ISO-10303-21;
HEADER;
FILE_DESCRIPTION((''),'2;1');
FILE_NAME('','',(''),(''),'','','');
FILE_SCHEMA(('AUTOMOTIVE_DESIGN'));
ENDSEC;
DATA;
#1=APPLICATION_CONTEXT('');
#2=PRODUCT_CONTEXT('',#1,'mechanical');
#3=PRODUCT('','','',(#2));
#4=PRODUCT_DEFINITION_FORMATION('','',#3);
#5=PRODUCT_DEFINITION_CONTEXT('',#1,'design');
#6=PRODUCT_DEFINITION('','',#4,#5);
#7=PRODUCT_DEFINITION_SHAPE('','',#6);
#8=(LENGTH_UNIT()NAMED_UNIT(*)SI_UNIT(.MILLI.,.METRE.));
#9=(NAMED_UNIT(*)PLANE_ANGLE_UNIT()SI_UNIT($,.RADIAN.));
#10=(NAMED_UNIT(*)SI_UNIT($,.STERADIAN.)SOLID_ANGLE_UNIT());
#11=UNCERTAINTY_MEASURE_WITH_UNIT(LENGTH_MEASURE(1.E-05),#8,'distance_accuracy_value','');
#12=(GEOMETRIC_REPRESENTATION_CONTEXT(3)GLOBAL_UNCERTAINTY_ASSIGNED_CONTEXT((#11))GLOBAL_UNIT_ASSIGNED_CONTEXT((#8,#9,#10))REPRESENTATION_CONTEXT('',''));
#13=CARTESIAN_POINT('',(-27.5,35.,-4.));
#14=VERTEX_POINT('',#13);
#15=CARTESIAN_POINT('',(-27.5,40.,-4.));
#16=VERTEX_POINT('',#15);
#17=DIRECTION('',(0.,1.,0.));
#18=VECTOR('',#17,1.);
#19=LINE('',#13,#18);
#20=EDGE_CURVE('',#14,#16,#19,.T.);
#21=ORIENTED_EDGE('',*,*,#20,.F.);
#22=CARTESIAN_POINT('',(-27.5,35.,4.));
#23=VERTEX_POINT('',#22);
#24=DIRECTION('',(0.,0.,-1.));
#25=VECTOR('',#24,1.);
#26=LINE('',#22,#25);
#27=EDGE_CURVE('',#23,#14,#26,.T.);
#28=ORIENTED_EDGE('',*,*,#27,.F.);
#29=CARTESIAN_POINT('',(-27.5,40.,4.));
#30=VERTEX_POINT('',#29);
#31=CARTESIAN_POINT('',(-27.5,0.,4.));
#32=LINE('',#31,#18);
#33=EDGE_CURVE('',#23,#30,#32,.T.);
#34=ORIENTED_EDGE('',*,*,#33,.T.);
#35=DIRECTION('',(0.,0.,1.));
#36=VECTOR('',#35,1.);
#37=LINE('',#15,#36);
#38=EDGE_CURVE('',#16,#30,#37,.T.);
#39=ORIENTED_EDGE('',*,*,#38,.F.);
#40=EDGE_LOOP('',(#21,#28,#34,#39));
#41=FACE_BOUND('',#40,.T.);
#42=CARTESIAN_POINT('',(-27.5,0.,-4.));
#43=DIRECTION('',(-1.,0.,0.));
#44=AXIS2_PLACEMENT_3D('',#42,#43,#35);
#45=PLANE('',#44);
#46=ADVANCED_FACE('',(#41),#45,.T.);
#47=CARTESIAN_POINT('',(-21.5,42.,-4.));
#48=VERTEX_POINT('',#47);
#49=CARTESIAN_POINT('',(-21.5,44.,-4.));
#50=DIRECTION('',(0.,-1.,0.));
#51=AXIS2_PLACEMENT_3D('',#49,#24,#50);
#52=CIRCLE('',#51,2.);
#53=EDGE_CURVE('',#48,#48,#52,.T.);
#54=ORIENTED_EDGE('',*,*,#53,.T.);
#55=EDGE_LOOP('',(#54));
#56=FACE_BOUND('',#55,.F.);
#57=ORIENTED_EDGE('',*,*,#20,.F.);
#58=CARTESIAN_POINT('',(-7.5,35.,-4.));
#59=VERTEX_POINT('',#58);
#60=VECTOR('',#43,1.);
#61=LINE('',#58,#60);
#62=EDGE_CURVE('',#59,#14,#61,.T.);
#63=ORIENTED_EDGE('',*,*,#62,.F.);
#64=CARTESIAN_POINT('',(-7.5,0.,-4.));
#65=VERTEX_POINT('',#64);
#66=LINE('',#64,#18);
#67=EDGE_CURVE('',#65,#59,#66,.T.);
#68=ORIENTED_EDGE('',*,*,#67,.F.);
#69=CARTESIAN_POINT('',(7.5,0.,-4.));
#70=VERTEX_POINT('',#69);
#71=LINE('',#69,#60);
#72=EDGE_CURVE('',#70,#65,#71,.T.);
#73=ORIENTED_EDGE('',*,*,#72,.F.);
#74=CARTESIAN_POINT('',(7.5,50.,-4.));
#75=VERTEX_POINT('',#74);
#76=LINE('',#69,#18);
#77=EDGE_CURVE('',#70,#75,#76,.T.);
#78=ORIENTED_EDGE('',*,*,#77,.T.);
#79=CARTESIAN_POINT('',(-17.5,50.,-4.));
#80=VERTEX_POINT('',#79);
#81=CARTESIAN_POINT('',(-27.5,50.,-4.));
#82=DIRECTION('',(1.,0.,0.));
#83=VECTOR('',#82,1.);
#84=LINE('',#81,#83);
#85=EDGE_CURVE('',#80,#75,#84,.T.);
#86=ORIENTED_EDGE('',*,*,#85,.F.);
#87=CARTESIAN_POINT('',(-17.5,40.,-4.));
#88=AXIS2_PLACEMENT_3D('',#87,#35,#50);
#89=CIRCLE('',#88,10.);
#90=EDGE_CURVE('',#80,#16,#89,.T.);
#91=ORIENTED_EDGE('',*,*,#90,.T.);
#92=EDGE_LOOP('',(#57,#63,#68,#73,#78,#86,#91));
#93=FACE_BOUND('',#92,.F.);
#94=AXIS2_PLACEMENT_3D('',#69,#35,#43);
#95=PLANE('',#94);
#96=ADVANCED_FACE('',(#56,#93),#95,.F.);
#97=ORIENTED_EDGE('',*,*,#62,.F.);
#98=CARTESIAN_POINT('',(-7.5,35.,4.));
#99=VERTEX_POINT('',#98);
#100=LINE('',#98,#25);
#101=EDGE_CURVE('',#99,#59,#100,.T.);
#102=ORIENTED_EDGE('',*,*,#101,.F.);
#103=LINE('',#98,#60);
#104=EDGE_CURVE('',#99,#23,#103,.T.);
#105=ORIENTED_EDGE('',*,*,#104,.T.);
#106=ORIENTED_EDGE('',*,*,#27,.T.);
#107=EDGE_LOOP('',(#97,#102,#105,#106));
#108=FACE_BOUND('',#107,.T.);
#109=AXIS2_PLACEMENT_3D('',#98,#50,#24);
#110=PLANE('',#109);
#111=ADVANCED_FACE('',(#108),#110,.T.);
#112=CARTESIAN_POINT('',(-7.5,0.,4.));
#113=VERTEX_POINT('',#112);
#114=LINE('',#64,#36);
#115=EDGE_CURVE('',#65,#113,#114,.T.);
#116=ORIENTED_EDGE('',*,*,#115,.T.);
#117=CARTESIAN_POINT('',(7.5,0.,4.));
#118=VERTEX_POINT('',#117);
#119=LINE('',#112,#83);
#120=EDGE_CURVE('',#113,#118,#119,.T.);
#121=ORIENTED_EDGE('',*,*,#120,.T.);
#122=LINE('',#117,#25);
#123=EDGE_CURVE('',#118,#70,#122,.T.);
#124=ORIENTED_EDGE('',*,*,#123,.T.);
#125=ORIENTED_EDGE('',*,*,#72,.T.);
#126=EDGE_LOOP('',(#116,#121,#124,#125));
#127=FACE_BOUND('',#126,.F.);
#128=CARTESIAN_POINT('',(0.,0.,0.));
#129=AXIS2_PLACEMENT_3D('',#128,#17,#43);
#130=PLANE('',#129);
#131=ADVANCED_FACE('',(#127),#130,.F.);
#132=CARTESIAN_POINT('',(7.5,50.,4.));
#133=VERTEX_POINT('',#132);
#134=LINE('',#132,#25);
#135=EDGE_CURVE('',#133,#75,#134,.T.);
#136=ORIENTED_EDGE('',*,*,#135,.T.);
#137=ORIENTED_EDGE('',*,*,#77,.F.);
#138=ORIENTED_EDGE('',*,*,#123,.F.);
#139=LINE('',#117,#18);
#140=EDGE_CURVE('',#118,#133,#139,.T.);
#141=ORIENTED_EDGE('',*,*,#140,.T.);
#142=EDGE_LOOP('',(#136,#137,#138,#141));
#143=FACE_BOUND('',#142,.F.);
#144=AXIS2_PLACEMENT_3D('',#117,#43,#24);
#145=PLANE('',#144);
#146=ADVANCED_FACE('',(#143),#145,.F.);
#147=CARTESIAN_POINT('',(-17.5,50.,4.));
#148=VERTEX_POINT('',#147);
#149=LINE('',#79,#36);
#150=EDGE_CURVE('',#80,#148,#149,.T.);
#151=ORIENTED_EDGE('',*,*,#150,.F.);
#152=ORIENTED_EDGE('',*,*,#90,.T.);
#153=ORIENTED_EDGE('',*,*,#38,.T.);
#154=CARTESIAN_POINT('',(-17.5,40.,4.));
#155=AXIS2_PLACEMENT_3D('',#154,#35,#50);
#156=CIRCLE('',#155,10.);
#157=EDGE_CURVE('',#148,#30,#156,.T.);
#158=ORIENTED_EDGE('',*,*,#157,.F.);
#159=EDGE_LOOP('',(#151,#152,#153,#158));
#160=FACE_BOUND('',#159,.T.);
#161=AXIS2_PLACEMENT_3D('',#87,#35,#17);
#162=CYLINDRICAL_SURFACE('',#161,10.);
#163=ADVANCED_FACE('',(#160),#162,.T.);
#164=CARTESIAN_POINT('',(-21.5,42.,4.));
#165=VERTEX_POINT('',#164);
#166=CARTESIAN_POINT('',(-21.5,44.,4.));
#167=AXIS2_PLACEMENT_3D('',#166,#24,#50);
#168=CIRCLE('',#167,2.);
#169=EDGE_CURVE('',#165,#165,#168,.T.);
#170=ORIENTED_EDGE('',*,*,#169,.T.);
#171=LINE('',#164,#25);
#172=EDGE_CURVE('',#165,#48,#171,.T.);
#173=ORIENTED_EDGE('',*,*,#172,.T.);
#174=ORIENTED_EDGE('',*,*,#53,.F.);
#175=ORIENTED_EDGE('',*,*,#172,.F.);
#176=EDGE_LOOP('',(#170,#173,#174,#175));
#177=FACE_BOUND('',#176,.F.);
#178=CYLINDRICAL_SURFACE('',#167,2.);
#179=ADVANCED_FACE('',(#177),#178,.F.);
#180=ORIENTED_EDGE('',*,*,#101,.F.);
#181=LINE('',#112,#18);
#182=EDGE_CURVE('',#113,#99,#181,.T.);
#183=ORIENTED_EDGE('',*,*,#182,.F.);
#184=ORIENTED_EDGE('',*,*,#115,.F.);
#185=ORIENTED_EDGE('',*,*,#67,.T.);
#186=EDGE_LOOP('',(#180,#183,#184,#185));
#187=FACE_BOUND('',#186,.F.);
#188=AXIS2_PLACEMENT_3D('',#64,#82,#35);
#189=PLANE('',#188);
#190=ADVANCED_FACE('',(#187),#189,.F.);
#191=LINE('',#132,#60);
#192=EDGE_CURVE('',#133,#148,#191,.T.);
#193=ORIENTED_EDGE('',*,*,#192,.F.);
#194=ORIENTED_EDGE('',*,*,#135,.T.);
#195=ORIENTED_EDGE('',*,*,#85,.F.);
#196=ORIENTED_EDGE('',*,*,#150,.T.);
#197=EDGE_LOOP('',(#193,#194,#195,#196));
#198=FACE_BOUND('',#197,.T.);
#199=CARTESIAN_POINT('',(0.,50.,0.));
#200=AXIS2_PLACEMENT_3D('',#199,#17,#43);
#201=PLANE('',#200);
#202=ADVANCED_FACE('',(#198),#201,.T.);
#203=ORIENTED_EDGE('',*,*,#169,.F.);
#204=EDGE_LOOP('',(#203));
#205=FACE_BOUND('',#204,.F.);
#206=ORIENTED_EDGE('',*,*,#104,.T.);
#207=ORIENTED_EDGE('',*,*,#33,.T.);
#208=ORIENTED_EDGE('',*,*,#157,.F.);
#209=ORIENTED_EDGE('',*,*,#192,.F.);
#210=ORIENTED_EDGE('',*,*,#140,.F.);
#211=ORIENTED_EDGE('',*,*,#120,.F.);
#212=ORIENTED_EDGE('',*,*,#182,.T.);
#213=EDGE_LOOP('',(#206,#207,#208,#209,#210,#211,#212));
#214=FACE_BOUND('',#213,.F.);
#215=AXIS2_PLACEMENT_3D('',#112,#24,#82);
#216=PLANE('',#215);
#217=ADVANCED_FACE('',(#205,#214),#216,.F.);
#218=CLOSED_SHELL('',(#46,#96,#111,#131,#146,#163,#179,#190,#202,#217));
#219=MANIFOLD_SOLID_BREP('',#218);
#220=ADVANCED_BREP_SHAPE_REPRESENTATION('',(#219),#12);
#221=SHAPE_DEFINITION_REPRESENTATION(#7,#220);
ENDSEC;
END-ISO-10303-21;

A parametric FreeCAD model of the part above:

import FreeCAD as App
import Part
import Sketcher


def edges_at(feature, points):
    """Names of the edges that pass closest to the given points."""
    edges = feature.Shape.Edges
    near = lambda p: min(range(len(edges)), key=lambda i: edges[i].distToShape(Part.Vertex(*p))[0])
    return sorted({f"Edge{near(p) + 1}" for p in points})


def add_polygon(sketch, points):
    """Adds a closed chain of lines whose ends are joined by coincident constraints."""
    first, n = sketch.GeometryCount, len(points)
    for a, b in zip(points, points[1:] + points[:1]):
        sketch.addGeometry(Part.LineSegment(App.Vector(*a, 0), App.Vector(*b, 0)), False)
    for i in range(n):
        sketch.addConstraint(Sketcher.Constraint("Coincident", first + i, 2, first + (i + 1) % n, 1))

doc = App.newDocument("Part")
body = doc.addObject("PartDesign::Body", "Body")

sketch1 = body.newObject("Sketcher::SketchObject", "Sketch")
sketch1.AttachmentSupport = (doc.getObject("XZ_Plane"), [""])
sketch1.MapMode = "FlatFace"
add_polygon(sketch1, [(8, 4), (8, -4), (-8, -4), (-8, 4)])
sketch1.addConstraint(Sketcher.Constraint("Vertical", 0))
sketch1.addConstraint(Sketcher.Constraint("Horizontal", 1))
sketch1.addConstraint(Sketcher.Constraint("Vertical", 2))
sketch1.addConstraint(Sketcher.Constraint("Horizontal", 3))
sketch1.addConstraint(Sketcher.Constraint("Symmetric", 0, 2, 2, 2, -1, 1))
sketch1.addConstraint(Sketcher.Constraint("DistanceX", 1, 2, 1, 1, 15.0))
sketch1.addConstraint(Sketcher.Constraint("DistanceY", 0, 2, 0, 1, 8.0))
pad1 = body.newObject("PartDesign::Pad", "Pad")
pad1.Profile = sketch1
pad1.Length = 50
pad1.Reversed = True

sketch2 = body.newObject("Sketcher::SketchObject", "Sketch001")
sketch2.AttachmentSupport = (doc.getObject("YZ_Plane"), [""])
sketch2.MapMode = "FlatFace"
sketch2.AttachmentOffset = App.Placement(App.Vector(0, 0, -7.5), App.Rotation())
add_polygon(sketch2, [(35, -4), (35, 4), (50, 4), (50, -4)])
sketch2.addConstraint(Sketcher.Constraint("Vertical", 0))
sketch2.addConstraint(Sketcher.Constraint("Horizontal", 1))
sketch2.addConstraint(Sketcher.Constraint("Vertical", 2))
sketch2.addConstraint(Sketcher.Constraint("Horizontal", 3))
sketch2.addConstraint(Sketcher.Constraint("DistanceX", 1, 1, 1, 2, 15.0))
sketch2.addConstraint(Sketcher.Constraint("DistanceY", 0, 1, 0, 2, 8.0))
sketch2.addConstraint(Sketcher.Constraint("DistanceX", -1, 1, 0, 2, 35.0))
sketch2.addConstraint(Sketcher.Constraint("DistanceY", -1, 1, 0, 2, 4.0))
pad2 = body.newObject("PartDesign::Pad", "Pad001")
pad2.Profile = sketch2
pad2.Length = 20
pad2.Reversed = True
doc.recompute()

fillet = body.newObject("PartDesign::Fillet", "Fillet")
fillet.Base = (pad2, edges_at(pad2, [(-27.5, 50, 0)]))
fillet.Radius = 10

sketch3 = body.newObject("Sketcher::SketchObject", "Sketch002")
sketch3.AttachmentSupport = (doc.getObject("XY_Plane"), [""])
sketch3.MapMode = "FlatFace"
sketch3.AttachmentOffset = App.Placement(App.Vector(0, 0, 4), App.Rotation())
sketch3.addGeometry(Part.Circle(App.Vector(-21.5, 44, 0), App.Vector(0, 0, 1), 2), False)
sketch3.addConstraint(Sketcher.Constraint("Diameter", 0, 4.0))
sketch3.addConstraint(Sketcher.Constraint("DistanceY", -1, 1, 0, 3, 44.0))
sketch3.addConstraint(Sketcher.Constraint("DistanceX", 0, 3, -1, 1, 21.5))
doc.recompute()
hole = body.newObject("PartDesign::Hole", "Hole")
hole.Profile = sketch3
hole.ThreadType = "None"
hole.Diameter = 4
hole.DepthType = "ThroughAll"

doc.recompute()
